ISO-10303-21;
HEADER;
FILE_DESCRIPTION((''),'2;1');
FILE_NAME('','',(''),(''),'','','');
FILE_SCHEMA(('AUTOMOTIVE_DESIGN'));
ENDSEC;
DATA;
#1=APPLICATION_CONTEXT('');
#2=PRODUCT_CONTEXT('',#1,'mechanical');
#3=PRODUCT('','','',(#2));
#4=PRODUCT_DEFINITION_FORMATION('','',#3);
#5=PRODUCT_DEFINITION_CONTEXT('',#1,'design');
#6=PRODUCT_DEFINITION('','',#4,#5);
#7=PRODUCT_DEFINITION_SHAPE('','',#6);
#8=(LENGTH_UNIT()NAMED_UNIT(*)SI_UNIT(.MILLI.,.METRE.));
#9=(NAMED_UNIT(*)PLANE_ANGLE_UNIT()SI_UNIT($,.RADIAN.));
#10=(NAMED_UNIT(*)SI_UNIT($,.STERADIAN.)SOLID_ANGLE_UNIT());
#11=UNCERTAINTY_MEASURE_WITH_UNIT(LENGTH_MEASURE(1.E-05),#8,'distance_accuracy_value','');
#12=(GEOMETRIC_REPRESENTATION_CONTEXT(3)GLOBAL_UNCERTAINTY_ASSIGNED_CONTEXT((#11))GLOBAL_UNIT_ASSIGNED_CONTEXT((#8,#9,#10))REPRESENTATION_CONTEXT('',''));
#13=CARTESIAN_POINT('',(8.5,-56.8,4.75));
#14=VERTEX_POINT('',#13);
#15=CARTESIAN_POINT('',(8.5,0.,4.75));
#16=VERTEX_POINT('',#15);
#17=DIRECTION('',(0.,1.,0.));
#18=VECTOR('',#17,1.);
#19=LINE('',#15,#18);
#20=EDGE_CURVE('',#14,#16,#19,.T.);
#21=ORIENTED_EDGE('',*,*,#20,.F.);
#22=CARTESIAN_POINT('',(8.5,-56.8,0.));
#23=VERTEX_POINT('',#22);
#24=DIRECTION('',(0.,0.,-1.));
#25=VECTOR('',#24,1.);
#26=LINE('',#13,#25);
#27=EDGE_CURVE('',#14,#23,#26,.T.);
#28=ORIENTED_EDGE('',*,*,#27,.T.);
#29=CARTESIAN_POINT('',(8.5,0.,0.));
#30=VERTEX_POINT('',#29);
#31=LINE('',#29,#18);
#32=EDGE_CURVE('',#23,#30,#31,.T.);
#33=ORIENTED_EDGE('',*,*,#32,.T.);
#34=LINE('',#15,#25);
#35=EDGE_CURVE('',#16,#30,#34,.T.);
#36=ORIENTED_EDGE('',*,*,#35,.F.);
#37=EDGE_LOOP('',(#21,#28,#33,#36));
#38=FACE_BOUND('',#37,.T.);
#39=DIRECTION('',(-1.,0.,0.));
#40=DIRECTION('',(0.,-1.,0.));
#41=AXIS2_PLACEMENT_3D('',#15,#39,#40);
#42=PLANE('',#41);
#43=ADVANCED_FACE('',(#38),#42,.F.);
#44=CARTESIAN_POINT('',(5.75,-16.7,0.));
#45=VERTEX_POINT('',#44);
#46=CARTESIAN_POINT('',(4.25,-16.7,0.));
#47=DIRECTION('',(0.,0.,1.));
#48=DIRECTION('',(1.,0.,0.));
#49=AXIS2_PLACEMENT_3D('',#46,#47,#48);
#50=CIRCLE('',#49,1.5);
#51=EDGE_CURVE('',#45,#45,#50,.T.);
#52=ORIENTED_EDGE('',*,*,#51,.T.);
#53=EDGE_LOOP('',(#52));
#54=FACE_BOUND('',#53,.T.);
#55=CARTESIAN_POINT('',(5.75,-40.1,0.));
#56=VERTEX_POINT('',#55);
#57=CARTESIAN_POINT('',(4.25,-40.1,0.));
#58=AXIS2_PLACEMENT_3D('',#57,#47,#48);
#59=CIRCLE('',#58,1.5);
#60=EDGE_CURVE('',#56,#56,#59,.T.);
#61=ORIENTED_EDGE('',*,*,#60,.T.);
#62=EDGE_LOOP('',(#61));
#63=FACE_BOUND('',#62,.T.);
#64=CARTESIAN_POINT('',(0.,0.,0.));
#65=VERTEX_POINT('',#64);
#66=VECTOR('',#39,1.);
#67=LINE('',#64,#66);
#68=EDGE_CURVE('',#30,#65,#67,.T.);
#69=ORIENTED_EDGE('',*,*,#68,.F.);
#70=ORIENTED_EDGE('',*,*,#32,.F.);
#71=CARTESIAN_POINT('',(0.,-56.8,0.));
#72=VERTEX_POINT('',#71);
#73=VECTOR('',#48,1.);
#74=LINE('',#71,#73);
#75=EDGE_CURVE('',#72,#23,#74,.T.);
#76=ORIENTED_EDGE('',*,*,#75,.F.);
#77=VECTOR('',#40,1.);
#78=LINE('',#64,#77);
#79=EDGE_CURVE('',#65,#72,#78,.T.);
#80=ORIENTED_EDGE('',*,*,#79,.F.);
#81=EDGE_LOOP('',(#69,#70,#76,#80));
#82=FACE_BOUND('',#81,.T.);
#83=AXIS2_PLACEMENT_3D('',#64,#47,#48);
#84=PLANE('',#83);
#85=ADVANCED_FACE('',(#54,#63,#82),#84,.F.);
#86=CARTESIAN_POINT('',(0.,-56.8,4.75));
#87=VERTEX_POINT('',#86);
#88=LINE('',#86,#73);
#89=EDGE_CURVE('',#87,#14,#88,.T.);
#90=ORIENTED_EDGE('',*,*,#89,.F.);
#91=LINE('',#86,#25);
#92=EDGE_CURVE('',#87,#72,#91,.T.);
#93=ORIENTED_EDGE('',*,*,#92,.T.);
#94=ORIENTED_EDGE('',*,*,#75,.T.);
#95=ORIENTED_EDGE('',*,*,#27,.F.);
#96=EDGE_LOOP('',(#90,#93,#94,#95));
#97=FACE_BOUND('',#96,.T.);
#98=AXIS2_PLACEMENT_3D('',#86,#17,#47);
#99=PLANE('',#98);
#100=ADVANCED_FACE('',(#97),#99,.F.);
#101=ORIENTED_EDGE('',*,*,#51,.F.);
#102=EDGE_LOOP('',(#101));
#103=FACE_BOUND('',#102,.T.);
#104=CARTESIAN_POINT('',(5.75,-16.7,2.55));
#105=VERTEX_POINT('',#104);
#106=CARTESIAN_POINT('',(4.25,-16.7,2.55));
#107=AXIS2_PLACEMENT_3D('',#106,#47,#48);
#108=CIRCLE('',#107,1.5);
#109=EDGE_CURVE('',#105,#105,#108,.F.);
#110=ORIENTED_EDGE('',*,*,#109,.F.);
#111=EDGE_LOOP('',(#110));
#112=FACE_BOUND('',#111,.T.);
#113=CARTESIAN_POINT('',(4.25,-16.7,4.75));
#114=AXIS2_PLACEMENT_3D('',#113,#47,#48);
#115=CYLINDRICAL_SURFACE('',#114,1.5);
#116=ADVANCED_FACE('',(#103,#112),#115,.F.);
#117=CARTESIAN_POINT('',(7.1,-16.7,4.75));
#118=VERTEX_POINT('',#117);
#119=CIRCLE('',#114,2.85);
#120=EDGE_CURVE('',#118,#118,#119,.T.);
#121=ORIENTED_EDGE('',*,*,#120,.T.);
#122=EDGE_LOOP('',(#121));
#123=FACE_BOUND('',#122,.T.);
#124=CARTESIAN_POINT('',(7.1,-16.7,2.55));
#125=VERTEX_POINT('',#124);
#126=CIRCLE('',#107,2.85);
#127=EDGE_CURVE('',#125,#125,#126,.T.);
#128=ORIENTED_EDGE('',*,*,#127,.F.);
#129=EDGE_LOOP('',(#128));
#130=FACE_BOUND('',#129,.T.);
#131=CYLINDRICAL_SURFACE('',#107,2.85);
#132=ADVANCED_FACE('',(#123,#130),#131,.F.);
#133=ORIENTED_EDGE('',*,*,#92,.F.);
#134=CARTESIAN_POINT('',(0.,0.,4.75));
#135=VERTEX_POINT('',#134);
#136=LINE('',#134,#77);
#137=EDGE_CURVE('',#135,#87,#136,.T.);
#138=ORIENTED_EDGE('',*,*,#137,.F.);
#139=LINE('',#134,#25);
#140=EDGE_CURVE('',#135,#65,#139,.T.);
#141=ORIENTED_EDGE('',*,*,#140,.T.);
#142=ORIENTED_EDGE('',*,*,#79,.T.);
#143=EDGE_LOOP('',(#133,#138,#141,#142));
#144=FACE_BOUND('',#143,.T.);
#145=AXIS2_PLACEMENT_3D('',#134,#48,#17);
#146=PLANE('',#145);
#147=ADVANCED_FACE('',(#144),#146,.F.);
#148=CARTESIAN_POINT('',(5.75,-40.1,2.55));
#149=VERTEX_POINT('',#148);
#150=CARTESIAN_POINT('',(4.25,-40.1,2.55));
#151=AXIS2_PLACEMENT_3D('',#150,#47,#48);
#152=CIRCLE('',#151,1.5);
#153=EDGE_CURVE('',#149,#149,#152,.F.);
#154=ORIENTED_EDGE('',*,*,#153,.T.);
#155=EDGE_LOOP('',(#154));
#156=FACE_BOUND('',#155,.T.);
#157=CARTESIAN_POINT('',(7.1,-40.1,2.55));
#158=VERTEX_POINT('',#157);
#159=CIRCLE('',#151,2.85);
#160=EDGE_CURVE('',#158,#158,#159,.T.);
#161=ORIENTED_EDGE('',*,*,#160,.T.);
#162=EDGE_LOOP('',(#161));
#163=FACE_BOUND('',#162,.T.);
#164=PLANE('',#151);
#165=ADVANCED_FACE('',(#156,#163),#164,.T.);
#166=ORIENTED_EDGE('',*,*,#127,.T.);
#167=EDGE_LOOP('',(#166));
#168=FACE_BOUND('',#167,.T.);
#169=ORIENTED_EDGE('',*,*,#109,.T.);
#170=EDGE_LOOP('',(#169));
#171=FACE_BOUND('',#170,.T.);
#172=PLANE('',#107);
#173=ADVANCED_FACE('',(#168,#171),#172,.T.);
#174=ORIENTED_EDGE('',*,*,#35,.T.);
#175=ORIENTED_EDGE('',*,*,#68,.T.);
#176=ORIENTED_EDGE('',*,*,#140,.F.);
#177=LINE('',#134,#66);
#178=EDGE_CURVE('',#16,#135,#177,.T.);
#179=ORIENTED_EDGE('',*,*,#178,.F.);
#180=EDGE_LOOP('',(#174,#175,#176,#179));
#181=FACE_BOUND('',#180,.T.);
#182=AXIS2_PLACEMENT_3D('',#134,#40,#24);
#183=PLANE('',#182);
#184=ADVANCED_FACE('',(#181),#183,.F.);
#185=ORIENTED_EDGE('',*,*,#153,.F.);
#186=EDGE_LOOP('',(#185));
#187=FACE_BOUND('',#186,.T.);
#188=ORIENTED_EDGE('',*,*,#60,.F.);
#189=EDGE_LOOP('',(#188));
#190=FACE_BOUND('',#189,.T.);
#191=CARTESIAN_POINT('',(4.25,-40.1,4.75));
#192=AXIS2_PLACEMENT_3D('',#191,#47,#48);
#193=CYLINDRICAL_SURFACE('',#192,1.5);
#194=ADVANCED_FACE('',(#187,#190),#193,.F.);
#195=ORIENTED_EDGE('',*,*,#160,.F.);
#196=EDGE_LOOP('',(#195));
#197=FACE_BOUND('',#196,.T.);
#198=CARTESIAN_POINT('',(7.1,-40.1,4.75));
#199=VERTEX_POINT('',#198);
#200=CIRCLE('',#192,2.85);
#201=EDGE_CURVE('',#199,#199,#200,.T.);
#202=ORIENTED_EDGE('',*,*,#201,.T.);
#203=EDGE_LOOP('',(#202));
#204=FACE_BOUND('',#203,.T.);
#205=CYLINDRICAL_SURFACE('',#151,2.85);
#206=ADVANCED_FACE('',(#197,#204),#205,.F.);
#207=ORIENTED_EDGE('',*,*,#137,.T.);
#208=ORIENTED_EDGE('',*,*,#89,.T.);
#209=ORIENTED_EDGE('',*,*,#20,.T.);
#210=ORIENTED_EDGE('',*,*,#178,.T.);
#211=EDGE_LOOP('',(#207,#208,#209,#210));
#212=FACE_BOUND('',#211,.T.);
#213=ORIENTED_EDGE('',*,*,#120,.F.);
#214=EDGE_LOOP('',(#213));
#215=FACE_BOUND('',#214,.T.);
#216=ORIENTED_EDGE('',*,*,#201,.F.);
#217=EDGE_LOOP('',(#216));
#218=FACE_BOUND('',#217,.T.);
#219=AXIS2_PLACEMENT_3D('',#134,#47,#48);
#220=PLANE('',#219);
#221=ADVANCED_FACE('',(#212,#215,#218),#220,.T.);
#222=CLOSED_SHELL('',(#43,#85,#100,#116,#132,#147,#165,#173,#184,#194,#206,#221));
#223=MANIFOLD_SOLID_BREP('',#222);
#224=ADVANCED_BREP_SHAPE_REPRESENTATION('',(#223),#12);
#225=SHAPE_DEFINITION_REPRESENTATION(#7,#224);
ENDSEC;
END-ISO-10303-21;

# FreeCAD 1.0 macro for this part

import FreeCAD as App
import Part
import Sketcher

V = App.Vector
Q = App.Units.Quantity


def add_polygon(sketch, points):
    """Adds a closed chain of lines whose ends are joined by coincident constraints."""
    first, n = sketch.GeometryCount, len(points)
    for a, b in zip(points, points[1:] + points[:1]):
        sketch.addGeometry(Part.LineSegment(App.Vector(*a, 0), App.Vector(*b, 0)), False)
    for i in range(n):
        sketch.addConstraint(Sketcher.Constraint("Coincident", first + i, 2, first + (i + 1) % n, 1))

doc = App.newDocument("Part")
params = doc.addObject("Spreadsheet::Sheet", "Params")
for row, (alias, value) in enumerate([
    ("sketch1_width", "8.5 mm"),
    ("sketch1_height", "56.8 mm"),
    ("pad1_length", "4.75 mm"),
    ("sketch2_diameter", "3 mm"),
    ("hole_diameter", "3 mm"),
    ("hole_depth", "5 mm"),
    ("sketch3_diameter", "5.7 mm"),
    ("pocket1_length", "2.2 mm"),
], start=1):
    params.set(f"A{row}", alias)
    params.set(f"B{row}", "=" + value)
    params.setAlias(f"B{row}", alias)

body = doc.addObject("PartDesign::Body", "Body")

# Sketch on XY plane
sketch1 = body.newObject("Sketcher::SketchObject", "Sketch")
sketch1.AttachmentSupport = (doc.getObject("XY_Plane"), [""])
sketch1.MapMode = "FlatFace"
add_polygon(sketch1, [(0, 0), (0, -57), (8, -57), (8, 0)])  # lines 0-3
sketch1.addConstraint(Sketcher.Constraint("Vertical", 0))
sketch1.addConstraint(Sketcher.Constraint("Horizontal", 1))
sketch1.addConstraint(Sketcher.Constraint("Vertical", 2))
sketch1.addConstraint(Sketcher.Constraint("Horizontal", 3))
sketch1.addConstraint(Sketcher.Constraint("Coincident", 3, 2, -1, 1))
sketch1.addConstraint(Sketcher.Constraint("DistanceX", 1, 1, 1, 2, Q("8.5 mm")))
sketch1.addConstraint(Sketcher.Constraint("DistanceY", 0, 2, 0, 1, Q("56.8 mm")))
sketch1.setExpression("Constraints[9]", "Params.sketch1_width")
sketch1.setExpression("Constraints[10]", "Params.sketch1_height")
pad1 = body.newObject("PartDesign::Pad", "Pad")
pad1.Profile = sketch1
pad1.setExpression("Length", "Params.pad1_length")

# Sketch on XY plane
sketch2 = body.newObject("Sketcher::SketchObject", "Sketch001")
sketch2.AttachmentSupport = (doc.getObject("XY_Plane"), [""])
sketch2.MapMode = "FlatFace"
sketch2.AttachmentOffset = App.Placement(V(0, 0, 4.75), App.Rotation())
sketch2.addGeometry(Part.Circle(V(4.2, -16.7, 0), V(0, 0, 1), 1.5), False)
sketch2.addGeometry(Part.Circle(V(4.2, -40.1, 0), V(0, 0, 1), 1.5), False)
sketch2.addConstraint(Sketcher.Constraint("Equal", 0, 1))
sketch2.addConstraint(Sketcher.Constraint("Vertical", 0, 3, 1, 3))
sketch2.addConstraint(Sketcher.Constraint("Diameter", 0, Q("3 mm")))
sketch2.addConstraint(Sketcher.Constraint("DistanceY", 0, 3, -1, 1, Q("16.7 mm")))
sketch2.addConstraint(Sketcher.Constraint("DistanceY", 1, 3, -1, 1, Q("40.1 mm")))
sketch2.addConstraint(Sketcher.Constraint("DistanceX", -1, 1, 0, 3, Q("4.25 mm")))
sketch2.setExpression("Constraints[2]", "Params.sketch2_diameter")
doc.recompute()
hole = body.newObject("PartDesign::Hole", "Hole")
hole.Profile = sketch2
hole.ThreadType = "None"
hole.setExpression("Diameter", "Params.hole_diameter")
hole.DepthType = "Dimension"
hole.setExpression("Depth", "Params.hole_depth")
hole.DrillPoint = "Angled"
hole.DrillPointAngle = 118

# Sketch on XY plane
sketch3 = body.newObject("Sketcher::SketchObject", "Sketch002")
sketch3.AttachmentSupport = (doc.getObject("XY_Plane"), [""])
sketch3.MapMode = "FlatFace"
sketch3.AttachmentOffset = App.Placement(V(0, 0, 4.75), App.Rotation())
sketch3.addGeometry(Part.Circle(V(4.2, -16.7, 0), V(0, 0, 1), 2.9), False)
sketch3.addGeometry(Part.Circle(V(4.2, -40.1, 0), V(0, 0, 1), 2.9), False)
sketch3.addConstraint(Sketcher.Constraint("Equal", 0, 1))
sketch3.addConstraint(Sketcher.Constraint("Vertical", 0, 3, 1, 3))
sketch3.addConstraint(Sketcher.Constraint("Diameter", 0, Q("5.7 mm")))
sketch3.addConstraint(Sketcher.Constraint("DistanceY", 0, 3, -1, 1, Q("16.7 mm")))
sketch3.addConstraint(Sketcher.Constraint("DistanceY", 1, 3, -1, 1, Q("40.1 mm")))
sketch3.addConstraint(Sketcher.Constraint("DistanceX", -1, 1, 0, 3, Q("4.25 mm")))
sketch3.setExpression("Constraints[2]", "Params.sketch3_diameter")
pocket1 = body.newObject("PartDesign::Pocket", "Pocket")
pocket1.Profile = sketch3
pocket1.setExpression("Length", "Params.pocket1_length")

doc.recompute()
